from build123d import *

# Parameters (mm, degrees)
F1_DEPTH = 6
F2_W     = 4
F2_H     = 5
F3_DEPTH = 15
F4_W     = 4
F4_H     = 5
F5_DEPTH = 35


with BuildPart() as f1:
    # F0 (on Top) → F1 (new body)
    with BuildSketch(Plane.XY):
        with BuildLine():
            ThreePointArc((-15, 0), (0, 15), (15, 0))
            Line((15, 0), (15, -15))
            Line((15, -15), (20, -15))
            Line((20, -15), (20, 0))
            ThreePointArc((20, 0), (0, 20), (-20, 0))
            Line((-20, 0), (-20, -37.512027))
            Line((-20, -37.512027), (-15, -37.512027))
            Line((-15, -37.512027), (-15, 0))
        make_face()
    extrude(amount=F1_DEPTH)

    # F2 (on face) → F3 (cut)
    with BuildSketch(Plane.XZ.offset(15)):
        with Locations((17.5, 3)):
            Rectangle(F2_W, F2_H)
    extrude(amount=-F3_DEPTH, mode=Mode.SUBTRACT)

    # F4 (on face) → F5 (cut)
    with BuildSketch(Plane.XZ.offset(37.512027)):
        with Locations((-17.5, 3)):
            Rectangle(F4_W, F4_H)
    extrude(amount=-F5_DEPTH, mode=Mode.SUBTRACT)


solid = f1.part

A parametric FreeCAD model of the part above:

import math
import FreeCAD as App
import Part
import Sketcher

V = App.Vector
Q = App.Units.Quantity

doc = App.newDocument("Part")
body = doc.addObject("PartDesign::Body", "Body")

sketch1 = body.newObject("Sketcher::SketchObject", "Sketch")
sketch1.AttachmentSupport = (doc.getObject("XY_Plane"), [""])
sketch1.MapMode = "FlatFace"
sketch1.addGeometry([
    Part.ArcOfCircle(Part.Circle(V(0, 0, 0), V(0, 0, 1), 15), math.radians(0), math.radians(180)),
    Part.LineSegment(V(15, 0, 0), V(15, -15, 0)),
    Part.LineSegment(V(15, -15, 0), V(20, -15, 0)),
    Part.LineSegment(V(20, -15, 0), V(20, 0, 0)),
    Part.ArcOfCircle(Part.Circle(V(0, 0, 0), V(0, 0, 1), 20), math.radians(0), math.radians(180)),
    Part.LineSegment(V(-20, 0, 0), V(-20, -38, 0)),
    Part.LineSegment(V(-20, -38, 0), V(-15, -38, 0)),
    Part.LineSegment(V(-15, -38, 0), V(-15, 0, 0)),
], False)
sketch1.addConstraint([
    Sketcher.Constraint("Tangent", 0, 1, 1, 1),
    Sketcher.Constraint("Coincident", 1, 2, 2, 1),
    Sketcher.Constraint("Coincident", 2, 2, 3, 1),
    Sketcher.Constraint("Tangent", 3, 2, 4, 1),
    Sketcher.Constraint("Tangent", 4, 2, 5, 1),
    Sketcher.Constraint("Coincident", 5, 2, 6, 1),
    Sketcher.Constraint("Coincident", 6, 2, 7, 1),
    Sketcher.Constraint("Tangent", 7, 2, 0, 2),
    Sketcher.Constraint("Vertical", 1),
    Sketcher.Constraint("Horizontal", 2),
    Sketcher.Constraint("Vertical", 3),
    Sketcher.Constraint("Vertical", 5),
    Sketcher.Constraint("Horizontal", 6),
    Sketcher.Constraint("Vertical", 7),
    Sketcher.Constraint("Coincident", 0, 3, -1, 1),
    Sketcher.Constraint("Coincident", 4, 3, -1, 1),
    Sketcher.Constraint("Radius", 0, Q("15 mm")),
    Sketcher.Constraint("Radius", 4, Q("20 mm")),
    Sketcher.Constraint("DistanceY", 1, 2, 1, 1, Q("15 mm")),
    Sketcher.Constraint("DistanceY", 5, 2, 5, 1, Q("37.512027 mm")),
])
pad1 = body.newObject("PartDesign::Pad", "Pad")
pad1.Profile = sketch1
pad1.Length = 6

sketch2 = body.newObject("Sketcher::SketchObject", "Sketch001")
sketch2.AttachmentSupport = (doc.getObject("XZ_Plane"), [""])
sketch2.MapMode = "FlatFace"
sketch2.AttachmentOffset = App.Placement(V(0, 0, 15), App.Rotation())
sketch2.addGeometry([
    Part.LineSegment(V(15.5, 5.5, 0), V(15.5, 0.5, 0)),
    Part.LineSegment(V(15.5, 0.5, 0), V(19.5, 0.5, 0)),
    Part.LineSegment(V(19.5, 0.5, 0), V(19.5, 5.5, 0)),
    Part.LineSegment(V(19.5, 5.5, 0), V(15.5, 5.5, 0)),
], False)
sketch2.addConstraint([
    Sketcher.Constraint("Coincident", 0, 2, 1, 1),
    Sketcher.Constraint("Coincident", 1, 2, 2, 1),
    Sketcher.Constraint("Coincident", 2, 2, 3, 1),
    Sketcher.Constraint("Coincident", 3, 2, 0, 1),
    Sketcher.Constraint("Vertical", 0),
    Sketcher.Constraint("Horizontal", 1),
    Sketcher.Constraint("Vertical", 2),
    Sketcher.Constraint("Horizontal", 3),
    Sketcher.Constraint("DistanceX", 1, 1, 1, 2, Q("4 mm")),
    Sketcher.Constraint("DistanceY", 0, 2, 0, 1, Q("5 mm")),
    Sketcher.Constraint("DistanceX", -1, 1, 0, 2, Q("15.5 mm")),
    Sketcher.Constraint("DistanceY", -1, 1, 0, 2, Q("0.5 mm")),
])
pocket1 = body.newObject("PartDesign::Pocket", "Pocket")
pocket1.Profile = sketch2
pocket1.Length = 15

sketch3 = body.newObject("Sketcher::SketchObject", "Sketch002")
sketch3.AttachmentSupport = (doc.getObject("XZ_Plane"), [""])
sketch3.MapMode = "FlatFace"
sketch3.AttachmentOffset = App.Placement(V(0, 0, 37.512027), App.Rotation())
sketch3.addGeometry([
    Part.LineSegment(V(-19.5, 5.5, 0), V(-19.5, 0.5, 0)),
    Part.LineSegment(V(-19.5, 0.5, 0), V(-15.5, 0.5, 0)),
    Part.LineSegment(V(-15.5, 0.5, 0), V(-15.5, 5.5, 0)),
    Part.LineSegment(V(-15.5, 5.5, 0), V(-19.5, 5.5, 0)),
], False)
sketch3.addConstraint([
    Sketcher.Constraint("Coincident", 0, 2, 1, 1),
    Sketcher.Constraint("Coincident", 1, 2, 2, 1),
    Sketcher.Constraint("Coincident", 2, 2, 3, 1),
    Sketcher.Constraint("Coincident", 3, 2, 0, 1),
    Sketcher.Constraint("Vertical", 0),
    Sketcher.Constraint("Horizontal", 1),
    Sketcher.Constraint("Vertical", 2),
    Sketcher.Constraint("Horizontal", 3),
    Sketcher.Constraint("DistanceX", 1, 1, 1, 2, Q("4 mm")),
    Sketcher.Constraint("DistanceY", 0, 2, 0, 1, Q("5 mm")),
    Sketcher.Constraint("DistanceX", 0, 2, -1, 1, Q("19.5 mm")),
    Sketcher.Constraint("DistanceY", -1, 1, 0, 2, Q("0.5 mm")),
])
pocket2 = body.newObject("PartDesign::Pocket", "Pocket001")
pocket2.Profile = sketch3
pocket2.Length = 35

doc.recompute()
